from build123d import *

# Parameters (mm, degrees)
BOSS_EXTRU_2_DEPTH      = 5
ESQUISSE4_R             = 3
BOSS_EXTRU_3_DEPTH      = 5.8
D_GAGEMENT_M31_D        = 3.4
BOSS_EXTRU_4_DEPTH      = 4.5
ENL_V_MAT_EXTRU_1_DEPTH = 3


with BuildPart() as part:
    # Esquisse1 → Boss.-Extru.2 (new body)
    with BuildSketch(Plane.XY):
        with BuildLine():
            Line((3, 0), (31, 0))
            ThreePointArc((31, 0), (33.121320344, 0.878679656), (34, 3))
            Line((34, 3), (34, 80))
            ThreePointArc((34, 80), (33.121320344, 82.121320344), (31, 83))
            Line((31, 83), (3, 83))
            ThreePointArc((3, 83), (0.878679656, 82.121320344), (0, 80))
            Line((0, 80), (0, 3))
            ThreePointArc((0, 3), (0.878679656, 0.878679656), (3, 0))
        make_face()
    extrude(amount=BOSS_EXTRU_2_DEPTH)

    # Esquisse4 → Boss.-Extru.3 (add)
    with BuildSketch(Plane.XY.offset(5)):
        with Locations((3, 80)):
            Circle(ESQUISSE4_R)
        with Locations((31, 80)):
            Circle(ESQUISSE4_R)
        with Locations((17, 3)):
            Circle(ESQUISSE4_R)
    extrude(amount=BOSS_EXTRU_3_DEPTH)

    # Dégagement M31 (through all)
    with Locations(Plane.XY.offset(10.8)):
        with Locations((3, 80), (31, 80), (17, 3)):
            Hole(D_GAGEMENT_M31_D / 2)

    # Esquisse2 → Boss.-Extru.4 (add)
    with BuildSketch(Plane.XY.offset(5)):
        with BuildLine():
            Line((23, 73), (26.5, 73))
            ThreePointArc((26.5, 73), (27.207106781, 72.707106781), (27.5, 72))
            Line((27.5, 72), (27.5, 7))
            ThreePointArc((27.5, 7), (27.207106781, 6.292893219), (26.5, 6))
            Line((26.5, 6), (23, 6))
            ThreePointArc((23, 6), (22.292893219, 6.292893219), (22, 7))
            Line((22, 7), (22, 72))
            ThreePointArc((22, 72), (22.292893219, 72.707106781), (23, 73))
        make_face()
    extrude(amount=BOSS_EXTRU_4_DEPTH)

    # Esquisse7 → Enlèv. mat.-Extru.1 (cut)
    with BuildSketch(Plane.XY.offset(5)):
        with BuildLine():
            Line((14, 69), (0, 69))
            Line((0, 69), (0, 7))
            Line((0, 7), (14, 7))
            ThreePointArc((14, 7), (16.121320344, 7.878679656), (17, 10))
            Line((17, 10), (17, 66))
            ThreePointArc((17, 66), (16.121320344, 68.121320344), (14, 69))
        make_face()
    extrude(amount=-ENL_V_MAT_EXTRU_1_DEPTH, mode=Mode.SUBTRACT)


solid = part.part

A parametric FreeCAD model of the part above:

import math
import FreeCAD as App
import Part
import Sketcher

V = App.Vector
Q = App.Units.Quantity

doc = App.newDocument("Part")
params = doc.addObject("Spreadsheet::Sheet", "Params")
for row, (alias, value) in enumerate([
    ("sketch1_radius", "3 mm"),
    ("sketch1_width", "28 mm"),
    ("sketch1_height", "77 mm"),
    ("pad1_length", "5 mm"),
    ("sketch2_diameter", "6 mm"),
    ("pad2_length", "5.8 mm"),
    ("sketch3_diameter", "3.4 mm"),
    ("hole_diameter", "3.4 mm"),
    ("sketch4_radius", "1 mm"),
    ("sketch4_height", "65 mm"),
    ("sketch4_width", "3.5 mm"),
    ("pad3_length", "4.5 mm"),
    ("sketch5_radius", "3 mm"),
    ("sketch5_width", "14 mm"),
    ("sketch5_height", "62 mm"),
    ("pocket1_length", "3 mm"),
], start=1):
    params.set(f"A{row}", alias)
    params.set(f"B{row}", "=" + value)
    params.setAlias(f"B{row}", alias)

body = doc.addObject("PartDesign::Body", "Body")

# Sketch on XY plane
sketch1 = body.newObject("Sketcher::SketchObject", "Sketch")
sketch1.AttachmentSupport = (doc.getObject("XY_Plane"), [""])
sketch1.MapMode = "FlatFace"
sketch1.addGeometry([
    Part.LineSegment(V(3, 0, 0), V(31, 0, 0)),  # 0
    Part.ArcOfCircle(Part.Circle(V(31, 3, 0), V(0, 0, 1), 3), math.radians(-90), math.radians(0)),  # 1
    Part.LineSegment(V(34, 3, 0), V(34, 80, 0)),  # 2
    Part.ArcOfCircle(Part.Circle(V(31, 80, 0), V(0, 0, 1), 3), math.radians(0), math.radians(90)),  # 3
    Part.LineSegment(V(31, 83, 0), V(3, 83, 0)),  # 4
    Part.ArcOfCircle(Part.Circle(V(3, 80, 0), V(0, 0, 1), 3), math.radians(90), math.radians(180)),  # 5
    Part.LineSegment(V(0, 80, 0), V(0, 3, 0)),  # 6
    Part.ArcOfCircle(Part.Circle(V(3, 3, 0), V(0, 0, 1), 3), math.radians(180), math.radians(270)),  # 7
], False)
sketch1.addConstraint([
    Sketcher.Constraint("Tangent", 0, 2, 1, 1),
    Sketcher.Constraint("Tangent", 1, 2, 2, 1),
    Sketcher.Constraint("Tangent", 2, 2, 3, 1),
    Sketcher.Constraint("Tangent", 3, 2, 4, 1),
    Sketcher.Constraint("Tangent", 4, 2, 5, 1),
    Sketcher.Constraint("Tangent", 5, 2, 6, 1),
    Sketcher.Constraint("Tangent", 6, 2, 7, 1),
    Sketcher.Constraint("Tangent", 7, 2, 0, 1),
    Sketcher.Constraint("Horizontal", 0),
    Sketcher.Constraint("Vertical", 2),
    Sketcher.Constraint("Horizontal", 4),
    Sketcher.Constraint("Vertical", 6),
    Sketcher.Constraint("Equal", 1, 3),
    Sketcher.Constraint("Equal", 3, 5),
    Sketcher.Constraint("Equal", 5, 7),
    Sketcher.Constraint("PointOnObject", 0, 2, -1),
    Sketcher.Constraint("PointOnObject", 5, 2, -2),
    Sketcher.Constraint("Radius", 1, Q("3 mm")),
    Sketcher.Constraint("DistanceX", 0, 1, 0, 2, Q("28 mm")),
    Sketcher.Constraint("DistanceY", 2, 1, 2, 2, Q("77 mm")),
])
sketch1.setExpression("Constraints[17]", "Params.sketch1_radius")
sketch1.setExpression("Constraints[18]", "Params.sketch1_width")
sketch1.setExpression("Constraints[19]", "Params.sketch1_height")
pad1 = body.newObject("PartDesign::Pad", "Pad")
pad1.Profile = sketch1
pad1.setExpression("Length", "Params.pad1_length")

# Sketch on XY plane
sketch2 = body.newObject("Sketcher::SketchObject", "Sketch001")
sketch2.AttachmentSupport = (doc.getObject("XY_Plane"), [""])
sketch2.MapMode = "FlatFace"
sketch2.AttachmentOffset = App.Placement(V(0, 0, 5), App.Rotation())
sketch2.addGeometry([
    Part.Circle(V(3, 80, 0), V(0, 0, 1), 3),
    Part.Circle(V(31, 80, 0), V(0, 0, 1), 3),
    Part.Circle(V(17, 3, 0), V(0, 0, 1), 3),
], False)
sketch2.addConstraint([
    Sketcher.Constraint("Equal", 0, 1),
    Sketcher.Constraint("Equal", 1, 2),
    Sketcher.Constraint("Horizontal", 0, 3, 1, 3),
    Sketcher.Constraint("Diameter", 0, Q("6 mm")),
    Sketcher.Constraint("DistanceX", -1, 1, 0, 3, Q("3 mm")),
    Sketcher.Constraint("DistanceY", -1, 1, 0, 3, Q("80 mm")),
    Sketcher.Constraint("DistanceX", -1, 1, 1, 3, Q("31 mm")),
    Sketcher.Constraint("DistanceX", -1, 1, 2, 3, Q("17 mm")),
    Sketcher.Constraint("DistanceY", -1, 1, 2, 3, Q("3 mm")),
])
sketch2.setExpression("Constraints[3]", "Params.sketch2_diameter")
pad2 = body.newObject("PartDesign::Pad", "Pad001")
pad2.Profile = sketch2
pad2.setExpression("Length", "Params.pad2_length")

# Sketch on XY plane
sketch3 = body.newObject("Sketcher::SketchObject", "Sketch002")
sketch3.AttachmentSupport = (doc.getObject("XY_Plane"), [""])
sketch3.MapMode = "FlatFace"
sketch3.AttachmentOffset = App.Placement(V(0, 0, 10.8), App.Rotation())
sketch3.addGeometry([
    Part.Circle(V(3, 80, 0), V(0, 0, 1), 1.7),
    Part.Circle(V(31, 80, 0), V(0, 0, 1), 1.7),
    Part.Circle(V(17, 3, 0), V(0, 0, 1), 1.7),
], False)
sketch3.addConstraint([
    Sketcher.Constraint("Equal", 0, 1),
    Sketcher.Constraint("Equal", 1, 2),
    Sketcher.Constraint("Horizontal", 0, 3, 1, 3),
    Sketcher.Constraint("Diameter", 0, Q("3.4 mm")),
    Sketcher.Constraint("DistanceX", -1, 1, 0, 3, Q("3 mm")),
    Sketcher.Constraint("DistanceY", -1, 1, 0, 3, Q("80 mm")),
    Sketcher.Constraint("DistanceX", -1, 1, 1, 3, Q("31 mm")),
    Sketcher.Constraint("DistanceX", -1, 1, 2, 3, Q("17 mm")),
    Sketcher.Constraint("DistanceY", -1, 1, 2, 3, Q("3 mm")),
])
sketch3.setExpression("Constraints[3]", "Params.sketch3_diameter")
doc.recompute()
hole = body.newObject("PartDesign::Hole", "Hole")
hole.Profile = sketch3
hole.ThreadType = "None"
hole.setExpression("Diameter", "Params.hole_diameter")
hole.DepthType = "ThroughAll"

# Sketch on XY plane
sketch4 = body.newObject("Sketcher::SketchObject", "Sketch003")
sketch4.AttachmentSupport = (doc.getObject("XY_Plane"), [""])
sketch4.MapMode = "FlatFace"
sketch4.AttachmentOffset = App.Placement(V(0, 0, 5), App.Rotation())
sketch4.addGeometry([
    Part.LineSegment(V(26.5, 73, 0), V(23, 73, 0)),  # 0
    Part.ArcOfCircle(Part.Circle(V(23, 72, 0), V(0, 0, 1), 1), math.radians(90), math.radians(180)),  # 1
    Part.LineSegment(V(22, 72, 0), V(22, 7, 0)),  # 2
    Part.ArcOfCircle(Part.Circle(V(23, 7, 0), V(0, 0, 1), 1), math.radians(-180), math.radians(-90)),  # 3
    Part.LineSegment(V(23, 6, 0), V(26.5, 6, 0)),  # 4
    Part.ArcOfCircle(Part.Circle(V(26.5, 7, 0), V(0, 0, 1), 1), math.radians(-90), math.radians(0)),  # 5
    Part.LineSegment(V(27.5, 7, 0), V(27.5, 72, 0)),  # 6
    Part.ArcOfCircle(Part.Circle(V(26.5, 72, 0), V(0, 0, 1), 1), math.radians(0), math.radians(90)),  # 7
], False)
sketch4.addConstraint([
    Sketcher.Constraint("Tangent", 0, 2, 1, 1),
    Sketcher.Constraint("Tangent", 1, 2, 2, 1),
    Sketcher.Constraint("Tangent", 2, 2, 3, 1),
    Sketcher.Constraint("Tangent", 3, 2, 4, 1),
    Sketcher.Constraint("Tangent", 4, 2, 5, 1),
    Sketcher.Constraint("Tangent", 5, 2, 6, 1),
    Sketcher.Constraint("Tangent", 6, 2, 7, 1),
    Sketcher.Constraint("Tangent", 7, 2, 0, 1),
    Sketcher.Constraint("Horizontal", 0),
    Sketcher.Constraint("Vertical", 2),
    Sketcher.Constraint("Horizontal", 4),
    Sketcher.Constraint("Vertical", 6),
    Sketcher.Constraint("Equal", 1, 3),
    Sketcher.Constraint("Equal", 3, 5),
    Sketcher.Constraint("Equal", 5, 7),
    Sketcher.Constraint("Radius", 1, Q("1 mm")),
    Sketcher.Constraint("DistanceY", 2, 2, 2, 1, Q("65 mm")),
    Sketcher.Constraint("DistanceX", 0, 2, 0, 1, Q("3.5 mm")),
    Sketcher.Constraint("DistanceX", -1, 1, 1, 3, Q("23 mm")),
    Sketcher.Constraint("DistanceY", -1, 1, 1, 3, Q("72 mm")),
])
sketch4.setExpression("Constraints[15]", "Params.sketch4_radius")
sketch4.setExpression("Constraints[16]", "Params.sketch4_height")
sketch4.setExpression("Constraints[17]", "Params.sketch4_width")
pad3 = body.newObject("PartDesign::Pad", "Pad002")
pad3.Profile = sketch4
pad3.setExpression("Length", "Params.pad3_length")

# Sketch on XY plane
sketch5 = body.newObject("Sketcher::SketchObject", "Sketch004")
sketch5.AttachmentSupport = (doc.getObject("XY_Plane"), [""])
sketch5.MapMode = "FlatFace"
sketch5.AttachmentOffset = App.Placement(V(0, 0, 5), App.Rotation())
sketch5.addGeometry([
    Part.LineSegment(V(14, 69, 0), V(0, 69, 0)),  # 0
    Part.LineSegment(V(0, 69, 0), V(0, 7, 0)),  # 1
    Part.LineSegment(V(0, 7, 0), V(14, 7, 0)),  # 2
    Part.ArcOfCircle(Part.Circle(V(14, 10, 0), V(0, 0, 1), 3), math.radians(-90), math.radians(0)),  # 3
    Part.LineSegment(V(17, 10, 0), V(17, 66, 0)),  # 4
    Part.ArcOfCircle(Part.Circle(V(14, 66, 0), V(0, 0, 1), 3), math.radians(0), math.radians(90)),  # 5
], False)
sketch5.addConstraint([
    Sketcher.Constraint("Coincident", 0, 2, 1, 1),
    Sketcher.Constraint("Coincident", 1, 2, 2, 1),
    Sketcher.Constraint("Tangent", 2, 2, 3, 1),
    Sketcher.Constraint("Tangent", 3, 2, 4, 1),
    Sketcher.Constraint("Tangent", 4, 2, 5, 1),
    Sketcher.Constraint("Tangent", 5, 2, 0, 1),
    Sketcher.Constraint("Horizontal", 0),
    Sketcher.Constraint("Vertical", 1),
    Sketcher.Constraint("Horizontal", 2),
    Sketcher.Constraint("Vertical", 4),
    Sketcher.Constraint("Equal", 3, 5),
    Sketcher.Constraint("PointOnObject", 0, 2, -2),
    Sketcher.Constraint("Radius", 3, Q("3 mm")),
    Sketcher.Constraint("DistanceX", 0, 2, 0, 1, Q("14 mm")),
    Sketcher.Constraint("DistanceY", 1, 2, 1, 1, Q("62 mm")),
    Sketcher.Constraint("DistanceY", -1, 1, 3, 3, Q("10 mm")),
])
sketch5.setExpression("Constraints[12]", "Params.sketch5_radius")
sketch5.setExpression("Constraints[13]", "Params.sketch5_width")
sketch5.setExpression("Constraints[14]", "Params.sketch5_height")
pocket1 = body.newObject("PartDesign::Pocket", "Pocket")
pocket1.Profile = sketch5
pocket1.setExpression("Length", "Params.pocket1_length")

doc.recompute()
